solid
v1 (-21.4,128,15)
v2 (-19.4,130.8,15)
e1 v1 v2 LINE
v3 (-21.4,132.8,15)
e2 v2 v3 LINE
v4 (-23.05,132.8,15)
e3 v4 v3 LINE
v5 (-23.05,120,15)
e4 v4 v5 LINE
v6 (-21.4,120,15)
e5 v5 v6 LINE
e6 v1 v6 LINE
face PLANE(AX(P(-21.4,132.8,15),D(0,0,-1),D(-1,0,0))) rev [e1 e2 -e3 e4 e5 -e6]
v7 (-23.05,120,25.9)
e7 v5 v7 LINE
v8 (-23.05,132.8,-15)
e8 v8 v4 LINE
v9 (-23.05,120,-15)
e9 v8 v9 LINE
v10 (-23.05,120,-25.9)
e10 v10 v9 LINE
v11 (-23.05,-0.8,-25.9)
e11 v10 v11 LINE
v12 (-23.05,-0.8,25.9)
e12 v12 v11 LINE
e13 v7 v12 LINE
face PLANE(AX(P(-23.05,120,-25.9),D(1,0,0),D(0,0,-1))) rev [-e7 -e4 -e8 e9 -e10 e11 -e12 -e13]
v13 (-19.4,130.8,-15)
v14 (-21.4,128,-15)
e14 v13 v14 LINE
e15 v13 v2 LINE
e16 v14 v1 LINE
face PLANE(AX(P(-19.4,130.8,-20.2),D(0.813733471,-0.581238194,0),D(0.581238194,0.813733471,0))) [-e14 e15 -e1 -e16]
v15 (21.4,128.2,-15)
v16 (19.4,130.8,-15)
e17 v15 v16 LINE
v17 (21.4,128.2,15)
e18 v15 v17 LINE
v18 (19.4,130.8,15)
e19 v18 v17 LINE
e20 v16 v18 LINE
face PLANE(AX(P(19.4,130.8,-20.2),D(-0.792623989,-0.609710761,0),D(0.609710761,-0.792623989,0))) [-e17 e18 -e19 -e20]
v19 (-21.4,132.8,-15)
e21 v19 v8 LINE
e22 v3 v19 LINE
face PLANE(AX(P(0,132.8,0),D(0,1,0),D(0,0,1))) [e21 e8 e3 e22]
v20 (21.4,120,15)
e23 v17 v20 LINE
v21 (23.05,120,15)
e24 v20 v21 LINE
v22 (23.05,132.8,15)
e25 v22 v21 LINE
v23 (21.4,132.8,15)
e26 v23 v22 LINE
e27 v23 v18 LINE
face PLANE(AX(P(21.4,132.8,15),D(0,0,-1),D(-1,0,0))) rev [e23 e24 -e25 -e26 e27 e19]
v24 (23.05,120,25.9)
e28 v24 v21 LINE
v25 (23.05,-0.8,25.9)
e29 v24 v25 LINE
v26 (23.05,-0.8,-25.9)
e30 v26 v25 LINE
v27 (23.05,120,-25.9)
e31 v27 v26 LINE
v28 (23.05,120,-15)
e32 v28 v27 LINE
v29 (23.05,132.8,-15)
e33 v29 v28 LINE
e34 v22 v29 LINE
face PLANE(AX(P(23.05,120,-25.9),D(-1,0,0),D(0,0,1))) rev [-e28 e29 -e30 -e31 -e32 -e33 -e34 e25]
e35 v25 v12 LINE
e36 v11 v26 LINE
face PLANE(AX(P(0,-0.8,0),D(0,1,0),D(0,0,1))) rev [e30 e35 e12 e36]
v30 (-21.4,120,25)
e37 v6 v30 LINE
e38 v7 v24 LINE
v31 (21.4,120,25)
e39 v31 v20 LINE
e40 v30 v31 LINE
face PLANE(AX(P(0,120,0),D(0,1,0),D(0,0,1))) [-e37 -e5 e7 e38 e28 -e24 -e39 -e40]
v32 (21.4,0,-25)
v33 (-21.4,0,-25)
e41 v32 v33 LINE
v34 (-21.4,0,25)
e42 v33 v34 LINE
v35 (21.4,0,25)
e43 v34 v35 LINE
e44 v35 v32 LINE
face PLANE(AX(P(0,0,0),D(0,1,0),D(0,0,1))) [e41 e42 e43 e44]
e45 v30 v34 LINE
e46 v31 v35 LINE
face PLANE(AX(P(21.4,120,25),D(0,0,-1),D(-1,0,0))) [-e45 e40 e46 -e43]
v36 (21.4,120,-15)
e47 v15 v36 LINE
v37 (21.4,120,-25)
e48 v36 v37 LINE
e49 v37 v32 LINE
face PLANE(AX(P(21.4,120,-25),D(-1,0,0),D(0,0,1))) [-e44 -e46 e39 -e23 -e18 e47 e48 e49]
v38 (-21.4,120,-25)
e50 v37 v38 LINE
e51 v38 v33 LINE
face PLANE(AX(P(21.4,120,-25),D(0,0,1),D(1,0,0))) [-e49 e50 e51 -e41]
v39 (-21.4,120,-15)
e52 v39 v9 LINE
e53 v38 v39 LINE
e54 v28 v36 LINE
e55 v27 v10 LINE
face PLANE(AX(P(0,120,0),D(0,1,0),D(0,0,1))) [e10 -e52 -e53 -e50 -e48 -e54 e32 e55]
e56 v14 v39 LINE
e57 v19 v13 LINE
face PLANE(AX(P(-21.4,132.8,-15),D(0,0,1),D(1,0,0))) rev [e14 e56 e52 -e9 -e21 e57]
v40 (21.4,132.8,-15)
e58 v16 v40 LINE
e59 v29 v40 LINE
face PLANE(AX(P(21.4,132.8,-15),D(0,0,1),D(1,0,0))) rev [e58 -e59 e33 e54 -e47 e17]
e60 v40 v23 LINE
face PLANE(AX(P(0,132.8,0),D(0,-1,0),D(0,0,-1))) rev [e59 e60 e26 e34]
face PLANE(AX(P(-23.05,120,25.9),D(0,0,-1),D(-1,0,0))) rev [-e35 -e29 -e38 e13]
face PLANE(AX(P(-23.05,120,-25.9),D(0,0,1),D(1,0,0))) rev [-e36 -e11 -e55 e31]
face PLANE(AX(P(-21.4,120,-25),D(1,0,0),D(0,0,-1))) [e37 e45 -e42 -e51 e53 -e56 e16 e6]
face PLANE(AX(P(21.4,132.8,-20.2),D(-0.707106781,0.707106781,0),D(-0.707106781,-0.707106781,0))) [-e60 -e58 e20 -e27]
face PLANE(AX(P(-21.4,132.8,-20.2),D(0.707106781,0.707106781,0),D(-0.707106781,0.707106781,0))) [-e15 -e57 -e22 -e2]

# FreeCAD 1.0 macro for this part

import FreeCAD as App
import Part
import Sketcher

V = App.Vector

doc = App.newDocument("Part")
params = doc.addObject("Spreadsheet::Sheet", "Params")
for row, (alias, value) in enumerate([
    ("sketch1_height", "50 mm"),
    ("sketch1_width", "46.1 mm"),
    ("sketch1_width2", "42.8 mm"),
    ("sketch1_height2", "51.8 mm"),
    ("pad1_length", "120 mm"),
    ("sketch2_height", "30 mm"),
    ("sketch2_width", "1.65 mm"),
    ("pad2_length", "12.8 mm"),
    ("sketch3_height", "4.8 mm"),
    ("sketch3_height2", "4.6 mm"),
    ("pad3_length", "30 mm"),
    ("sketch4_width", "46.1 mm"),
    ("sketch4_height", "51.8 mm"),
    ("pad4_length", "0.8 mm"),
], start=1):
    params.set(f"A{row}", alias)
    params.set(f"B{row}", "=" + value)
    params.setAlias(f"B{row}", alias)

body = doc.addObject("PartDesign::Body", "Body")

# Sketch on XZ plane
sketch1 = body.newObject("Sketcher::SketchObject", "Sketch")
sketch1.AttachmentSupport = (doc.getObject("XZ_Plane"), [""])
sketch1.MapMode = "FlatFace"
sketch1.addGeometry([
    Part.LineSegment(V(-23, -26, 0), V(-23, 26, 0)),  # 0
    Part.LineSegment(V(-23, 26, 0), V(23, 26, 0)),  # 1
    Part.LineSegment(V(23, 26, 0), V(23, -26, 0)),  # 2
    Part.LineSegment(V(23, -26, 0), V(-23, -26, 0)),  # 3
    Part.LineSegment(V(21, 25, 0), V(-21, 25, 0)),  # 4
    Part.LineSegment(V(-21, 25, 0), V(-21, -25, 0)),  # 5
    Part.LineSegment(V(-21, -25, 0), V(21, -25, 0)),  # 6
    Part.LineSegment(V(21, -25, 0), V(21, 25, 0)),  # 7
], False)
sketch1.addConstraint([
    Sketcher.Constraint("Coincident", 0, 2, 1, 1),
    Sketcher.Constraint("Coincident", 1, 2, 2, 1),
    Sketcher.Constraint("Coincident", 2, 2, 3, 1),
    Sketcher.Constraint("Coincident", 3, 2, 0, 1),
    Sketcher.Constraint("Coincident", 4, 2, 5, 1),
    Sketcher.Constraint("Coincident", 5, 2, 6, 1),
    Sketcher.Constraint("Coincident", 6, 2, 7, 1),
    Sketcher.Constraint("Coincident", 7, 2, 4, 1),
    Sketcher.Constraint("Vertical", 0),
    Sketcher.Constraint("Horizontal", 1),
    Sketcher.Constraint("Vertical", 2),
    Sketcher.Constraint("Horizontal", 3),
    Sketcher.Constraint("Horizontal", 4),
    Sketcher.Constraint("Vertical", 5),
    Sketcher.Constraint("Horizontal", 6),
    Sketcher.Constraint("Vertical", 7),
    Sketcher.Constraint("Symmetric", 0, 2, 2, 2, -1, 1),
    Sketcher.Constraint("Symmetric", 4, 2, 6, 2, -1, 1),
    Sketcher.Constraint("DistanceY", 5, 2, 5, 1, 50.0),
    Sketcher.Constraint("DistanceX", 1, 1, 1, 2, 46.1),
    Sketcher.Constraint("DistanceX", 4, 2, 4, 1, 42.8),
    Sketcher.Constraint("DistanceY", 0, 1, 0, 2, 51.8),
])
sketch1.setExpression("Constraints[18]", "Params.sketch1_height")
sketch1.setExpression("Constraints[19]", "Params.sketch1_width")
sketch1.setExpression("Constraints[20]", "Params.sketch1_width2")
sketch1.setExpression("Constraints[21]", "Params.sketch1_height2")
pad1 = body.newObject("PartDesign::Pad", "Pad")
pad1.Profile = sketch1
pad1.setExpression("Length", "Params.pad1_length")
pad1.Reversed = True

# Sketch on XZ plane
sketch2 = body.newObject("Sketcher::SketchObject", "Sketch001")
sketch2.AttachmentSupport = (doc.getObject("XZ_Plane"), [""])
sketch2.MapMode = "FlatFace"
sketch2.AttachmentOffset = App.Placement(V(0, 0, -120), App.Rotation())
sketch2.addGeometry([
    Part.LineSegment(V(21.4, -15, 0), V(21.4, 15, 0)),  # 0
    Part.LineSegment(V(21.4, 15, 0), V(23.1, 15, 0)),  # 1
    Part.LineSegment(V(23.1, 15, 0), V(23.1, -15, 0)),  # 2
    Part.LineSegment(V(23.1, -15, 0), V(21.4, -15, 0)),  # 3
    Part.LineSegment(V(-23.1, -15, 0), V(-23.1, 15, 0)),  # 4
    Part.LineSegment(V(-23.1, 15, 0), V(-21.4, 15, 0)),  # 5
    Part.LineSegment(V(-21.4, 15, 0), V(-21.4, -15, 0)),  # 6
    Part.LineSegment(V(-21.4, -15, 0), V(-23.1, -15, 0)),  # 7
], False)
sketch2.addConstraint([
    Sketcher.Constraint("Coincident", 0, 2, 1, 1),
    Sketcher.Constraint("Coincident", 1, 2, 2, 1),
    Sketcher.Constraint("Coincident", 2, 2, 3, 1),
    Sketcher.Constraint("Coincident", 3, 2, 0, 1),
    Sketcher.Constraint("Coincident", 4, 2, 5, 1),
    Sketcher.Constraint("Coincident", 5, 2, 6, 1),
    Sketcher.Constraint("Coincident", 6, 2, 7, 1),
    Sketcher.Constraint("Coincident", 7, 2, 4, 1),
    Sketcher.Constraint("Vertical", 0),
    Sketcher.Constraint("Horizontal", 1),
    Sketcher.Constraint("Vertical", 2),
    Sketcher.Constraint("Horizontal", 3),
    Sketcher.Constraint("Vertical", 4),
    Sketcher.Constraint("Horizontal", 5),
    Sketcher.Constraint("Vertical", 6),
    Sketcher.Constraint("Horizontal", 7),
    Sketcher.Constraint("Symmetric", 2, 2, 4, 2, -1, 1),
    Sketcher.Constraint("Symmetric", 0, 2, 6, 2, -1, 1),
    Sketcher.Constraint("Horizontal", 1, 2, 4, 2),
    Sketcher.Constraint("DistanceY", 0, 1, 0, 2, 30.0),
    Sketcher.Constraint("DistanceX", 1, 1, 1, 2, 1.65),
    Sketcher.Constraint("DistanceX", -1, 1, 0, 2, 21.4),
])
sketch2.setExpression("Constraints[19]", "Params.sketch2_height")
sketch2.setExpression("Constraints[20]", "Params.sketch2_width")
pad2 = body.newObject("PartDesign::Pad", "Pad001")
pad2.Profile = sketch2
pad2.setExpression("Length", "Params.pad2_length")
pad2.Reversed = True

# Sketch on XY plane
sketch3 = body.newObject("Sketcher::SketchObject", "Sketch002")
sketch3.AttachmentSupport = (doc.getObject("XY_Plane"), [""])
sketch3.MapMode = "FlatFace"
sketch3.AttachmentOffset = App.Placement(V(0, 0, 15), App.Rotation())
sketch3.addGeometry([
    Part.LineSegment(V(-21.4, 128, 0), V(-19.4, 130.8, 0)),  # 0
    Part.LineSegment(V(-19.4, 130.8, 0), V(-21.4, 132.8, 0)),  # 1
    Part.LineSegment(V(-21.4, 132.8, 0), V(-21.4, 128, 0)),  # 2
    Part.LineSegment(V(21.4, 128.2, 0), V(21.4, 132.8, 0)),  # 3
    Part.LineSegment(V(21.4, 132.8, 0), V(19.4, 130.8, 0)),  # 4
    Part.LineSegment(V(19.4, 130.8, 0), V(21.4, 128.2, 0)),  # 5
], False)
sketch3.addConstraint([
    Sketcher.Constraint("Coincident", 0, 2, 1, 1),
    Sketcher.Constraint("Coincident", 1, 2, 2, 1),
    Sketcher.Constraint("Coincident", 2, 2, 0, 1),
    Sketcher.Constraint("Coincident", 3, 2, 4, 1),
    Sketcher.Constraint("Coincident", 4, 2, 5, 1),
    Sketcher.Constraint("Coincident", 5, 2, 3, 1),
    Sketcher.Constraint("Vertical", 2),
    Sketcher.Constraint("Vertical", 3),
    Sketcher.Constraint("Symmetric", 1, 2, 3, 2, -2),
    Sketcher.Constraint("Symmetric", 0, 2, 4, 2, -2),
    Sketcher.Constraint("Perpendicular", 1, 4),
    Sketcher.Constraint("DistanceY", 2, 2, 2, 1, 4.8),
    Sketcher.Constraint("DistanceY", 3, 1, 3, 2, 4.6),
    Sketcher.Constraint("DistanceY", -1, 1, 2, 2, 128.0),
    Sketcher.Constraint("DistanceX", 1, 2, 0, 2, 2.0),
    Sketcher.Constraint("DistanceX", 0, 2, -1, 1, 19.4),
])
sketch3.setExpression("Constraints[11]", "Params.sketch3_height")
sketch3.setExpression("Constraints[12]", "Params.sketch3_height2")
pad3 = body.newObject("PartDesign::Pad", "Pad002")
pad3.Profile = sketch3
pad3.setExpression("Length", "Params.pad3_length")
pad3.Reversed = True

# Sketch on XZ plane
sketch4 = body.newObject("Sketcher::SketchObject", "Sketch003")
sketch4.AttachmentSupport = (doc.getObject("XZ_Plane"), [""])
sketch4.MapMode = "FlatFace"
sketch4.addGeometry([
    Part.LineSegment(V(-23, 26, 0), V(-23, -26, 0)),
    Part.LineSegment(V(-23, -26, 0), V(23, -26, 0)),
    Part.LineSegment(V(23, -26, 0), V(23, 26, 0)),
    Part.LineSegment(V(23, 26, 0), V(-23, 26, 0)),
], False)
sketch4.addConstraint([
    Sketcher.Constraint("Coincident", 0, 2, 1, 1),
    Sketcher.Constraint("Coincident", 1, 2, 2, 1),
    Sketcher.Constraint("Coincident", 2, 2, 3, 1),
    Sketcher.Constraint("Coincident", 3, 2, 0, 1),
    Sketcher.Constraint("Vertical", 0),
    Sketcher.Constraint("Horizontal", 1),
    Sketcher.Constraint("Vertical", 2),
    Sketcher.Constraint("Horizontal", 3),
    Sketcher.Constraint("Symmetric", 0, 2, 2, 2, -1, 1),
    Sketcher.Constraint("DistanceX", 1, 1, 1, 2, 46.1),
    Sketcher.Constraint("DistanceY", 0, 2, 0, 1, 51.8),
])
sketch4.setExpression("Constraints[9]", "Params.sketch4_width")
sketch4.setExpression("Constraints[10]", "Params.sketch4_height")
pad4 = body.newObject("PartDesign::Pad", "Pad003")
pad4.Profile = sketch4
pad4.setExpression("Length", "Params.pad4_length")

doc.recompute()
